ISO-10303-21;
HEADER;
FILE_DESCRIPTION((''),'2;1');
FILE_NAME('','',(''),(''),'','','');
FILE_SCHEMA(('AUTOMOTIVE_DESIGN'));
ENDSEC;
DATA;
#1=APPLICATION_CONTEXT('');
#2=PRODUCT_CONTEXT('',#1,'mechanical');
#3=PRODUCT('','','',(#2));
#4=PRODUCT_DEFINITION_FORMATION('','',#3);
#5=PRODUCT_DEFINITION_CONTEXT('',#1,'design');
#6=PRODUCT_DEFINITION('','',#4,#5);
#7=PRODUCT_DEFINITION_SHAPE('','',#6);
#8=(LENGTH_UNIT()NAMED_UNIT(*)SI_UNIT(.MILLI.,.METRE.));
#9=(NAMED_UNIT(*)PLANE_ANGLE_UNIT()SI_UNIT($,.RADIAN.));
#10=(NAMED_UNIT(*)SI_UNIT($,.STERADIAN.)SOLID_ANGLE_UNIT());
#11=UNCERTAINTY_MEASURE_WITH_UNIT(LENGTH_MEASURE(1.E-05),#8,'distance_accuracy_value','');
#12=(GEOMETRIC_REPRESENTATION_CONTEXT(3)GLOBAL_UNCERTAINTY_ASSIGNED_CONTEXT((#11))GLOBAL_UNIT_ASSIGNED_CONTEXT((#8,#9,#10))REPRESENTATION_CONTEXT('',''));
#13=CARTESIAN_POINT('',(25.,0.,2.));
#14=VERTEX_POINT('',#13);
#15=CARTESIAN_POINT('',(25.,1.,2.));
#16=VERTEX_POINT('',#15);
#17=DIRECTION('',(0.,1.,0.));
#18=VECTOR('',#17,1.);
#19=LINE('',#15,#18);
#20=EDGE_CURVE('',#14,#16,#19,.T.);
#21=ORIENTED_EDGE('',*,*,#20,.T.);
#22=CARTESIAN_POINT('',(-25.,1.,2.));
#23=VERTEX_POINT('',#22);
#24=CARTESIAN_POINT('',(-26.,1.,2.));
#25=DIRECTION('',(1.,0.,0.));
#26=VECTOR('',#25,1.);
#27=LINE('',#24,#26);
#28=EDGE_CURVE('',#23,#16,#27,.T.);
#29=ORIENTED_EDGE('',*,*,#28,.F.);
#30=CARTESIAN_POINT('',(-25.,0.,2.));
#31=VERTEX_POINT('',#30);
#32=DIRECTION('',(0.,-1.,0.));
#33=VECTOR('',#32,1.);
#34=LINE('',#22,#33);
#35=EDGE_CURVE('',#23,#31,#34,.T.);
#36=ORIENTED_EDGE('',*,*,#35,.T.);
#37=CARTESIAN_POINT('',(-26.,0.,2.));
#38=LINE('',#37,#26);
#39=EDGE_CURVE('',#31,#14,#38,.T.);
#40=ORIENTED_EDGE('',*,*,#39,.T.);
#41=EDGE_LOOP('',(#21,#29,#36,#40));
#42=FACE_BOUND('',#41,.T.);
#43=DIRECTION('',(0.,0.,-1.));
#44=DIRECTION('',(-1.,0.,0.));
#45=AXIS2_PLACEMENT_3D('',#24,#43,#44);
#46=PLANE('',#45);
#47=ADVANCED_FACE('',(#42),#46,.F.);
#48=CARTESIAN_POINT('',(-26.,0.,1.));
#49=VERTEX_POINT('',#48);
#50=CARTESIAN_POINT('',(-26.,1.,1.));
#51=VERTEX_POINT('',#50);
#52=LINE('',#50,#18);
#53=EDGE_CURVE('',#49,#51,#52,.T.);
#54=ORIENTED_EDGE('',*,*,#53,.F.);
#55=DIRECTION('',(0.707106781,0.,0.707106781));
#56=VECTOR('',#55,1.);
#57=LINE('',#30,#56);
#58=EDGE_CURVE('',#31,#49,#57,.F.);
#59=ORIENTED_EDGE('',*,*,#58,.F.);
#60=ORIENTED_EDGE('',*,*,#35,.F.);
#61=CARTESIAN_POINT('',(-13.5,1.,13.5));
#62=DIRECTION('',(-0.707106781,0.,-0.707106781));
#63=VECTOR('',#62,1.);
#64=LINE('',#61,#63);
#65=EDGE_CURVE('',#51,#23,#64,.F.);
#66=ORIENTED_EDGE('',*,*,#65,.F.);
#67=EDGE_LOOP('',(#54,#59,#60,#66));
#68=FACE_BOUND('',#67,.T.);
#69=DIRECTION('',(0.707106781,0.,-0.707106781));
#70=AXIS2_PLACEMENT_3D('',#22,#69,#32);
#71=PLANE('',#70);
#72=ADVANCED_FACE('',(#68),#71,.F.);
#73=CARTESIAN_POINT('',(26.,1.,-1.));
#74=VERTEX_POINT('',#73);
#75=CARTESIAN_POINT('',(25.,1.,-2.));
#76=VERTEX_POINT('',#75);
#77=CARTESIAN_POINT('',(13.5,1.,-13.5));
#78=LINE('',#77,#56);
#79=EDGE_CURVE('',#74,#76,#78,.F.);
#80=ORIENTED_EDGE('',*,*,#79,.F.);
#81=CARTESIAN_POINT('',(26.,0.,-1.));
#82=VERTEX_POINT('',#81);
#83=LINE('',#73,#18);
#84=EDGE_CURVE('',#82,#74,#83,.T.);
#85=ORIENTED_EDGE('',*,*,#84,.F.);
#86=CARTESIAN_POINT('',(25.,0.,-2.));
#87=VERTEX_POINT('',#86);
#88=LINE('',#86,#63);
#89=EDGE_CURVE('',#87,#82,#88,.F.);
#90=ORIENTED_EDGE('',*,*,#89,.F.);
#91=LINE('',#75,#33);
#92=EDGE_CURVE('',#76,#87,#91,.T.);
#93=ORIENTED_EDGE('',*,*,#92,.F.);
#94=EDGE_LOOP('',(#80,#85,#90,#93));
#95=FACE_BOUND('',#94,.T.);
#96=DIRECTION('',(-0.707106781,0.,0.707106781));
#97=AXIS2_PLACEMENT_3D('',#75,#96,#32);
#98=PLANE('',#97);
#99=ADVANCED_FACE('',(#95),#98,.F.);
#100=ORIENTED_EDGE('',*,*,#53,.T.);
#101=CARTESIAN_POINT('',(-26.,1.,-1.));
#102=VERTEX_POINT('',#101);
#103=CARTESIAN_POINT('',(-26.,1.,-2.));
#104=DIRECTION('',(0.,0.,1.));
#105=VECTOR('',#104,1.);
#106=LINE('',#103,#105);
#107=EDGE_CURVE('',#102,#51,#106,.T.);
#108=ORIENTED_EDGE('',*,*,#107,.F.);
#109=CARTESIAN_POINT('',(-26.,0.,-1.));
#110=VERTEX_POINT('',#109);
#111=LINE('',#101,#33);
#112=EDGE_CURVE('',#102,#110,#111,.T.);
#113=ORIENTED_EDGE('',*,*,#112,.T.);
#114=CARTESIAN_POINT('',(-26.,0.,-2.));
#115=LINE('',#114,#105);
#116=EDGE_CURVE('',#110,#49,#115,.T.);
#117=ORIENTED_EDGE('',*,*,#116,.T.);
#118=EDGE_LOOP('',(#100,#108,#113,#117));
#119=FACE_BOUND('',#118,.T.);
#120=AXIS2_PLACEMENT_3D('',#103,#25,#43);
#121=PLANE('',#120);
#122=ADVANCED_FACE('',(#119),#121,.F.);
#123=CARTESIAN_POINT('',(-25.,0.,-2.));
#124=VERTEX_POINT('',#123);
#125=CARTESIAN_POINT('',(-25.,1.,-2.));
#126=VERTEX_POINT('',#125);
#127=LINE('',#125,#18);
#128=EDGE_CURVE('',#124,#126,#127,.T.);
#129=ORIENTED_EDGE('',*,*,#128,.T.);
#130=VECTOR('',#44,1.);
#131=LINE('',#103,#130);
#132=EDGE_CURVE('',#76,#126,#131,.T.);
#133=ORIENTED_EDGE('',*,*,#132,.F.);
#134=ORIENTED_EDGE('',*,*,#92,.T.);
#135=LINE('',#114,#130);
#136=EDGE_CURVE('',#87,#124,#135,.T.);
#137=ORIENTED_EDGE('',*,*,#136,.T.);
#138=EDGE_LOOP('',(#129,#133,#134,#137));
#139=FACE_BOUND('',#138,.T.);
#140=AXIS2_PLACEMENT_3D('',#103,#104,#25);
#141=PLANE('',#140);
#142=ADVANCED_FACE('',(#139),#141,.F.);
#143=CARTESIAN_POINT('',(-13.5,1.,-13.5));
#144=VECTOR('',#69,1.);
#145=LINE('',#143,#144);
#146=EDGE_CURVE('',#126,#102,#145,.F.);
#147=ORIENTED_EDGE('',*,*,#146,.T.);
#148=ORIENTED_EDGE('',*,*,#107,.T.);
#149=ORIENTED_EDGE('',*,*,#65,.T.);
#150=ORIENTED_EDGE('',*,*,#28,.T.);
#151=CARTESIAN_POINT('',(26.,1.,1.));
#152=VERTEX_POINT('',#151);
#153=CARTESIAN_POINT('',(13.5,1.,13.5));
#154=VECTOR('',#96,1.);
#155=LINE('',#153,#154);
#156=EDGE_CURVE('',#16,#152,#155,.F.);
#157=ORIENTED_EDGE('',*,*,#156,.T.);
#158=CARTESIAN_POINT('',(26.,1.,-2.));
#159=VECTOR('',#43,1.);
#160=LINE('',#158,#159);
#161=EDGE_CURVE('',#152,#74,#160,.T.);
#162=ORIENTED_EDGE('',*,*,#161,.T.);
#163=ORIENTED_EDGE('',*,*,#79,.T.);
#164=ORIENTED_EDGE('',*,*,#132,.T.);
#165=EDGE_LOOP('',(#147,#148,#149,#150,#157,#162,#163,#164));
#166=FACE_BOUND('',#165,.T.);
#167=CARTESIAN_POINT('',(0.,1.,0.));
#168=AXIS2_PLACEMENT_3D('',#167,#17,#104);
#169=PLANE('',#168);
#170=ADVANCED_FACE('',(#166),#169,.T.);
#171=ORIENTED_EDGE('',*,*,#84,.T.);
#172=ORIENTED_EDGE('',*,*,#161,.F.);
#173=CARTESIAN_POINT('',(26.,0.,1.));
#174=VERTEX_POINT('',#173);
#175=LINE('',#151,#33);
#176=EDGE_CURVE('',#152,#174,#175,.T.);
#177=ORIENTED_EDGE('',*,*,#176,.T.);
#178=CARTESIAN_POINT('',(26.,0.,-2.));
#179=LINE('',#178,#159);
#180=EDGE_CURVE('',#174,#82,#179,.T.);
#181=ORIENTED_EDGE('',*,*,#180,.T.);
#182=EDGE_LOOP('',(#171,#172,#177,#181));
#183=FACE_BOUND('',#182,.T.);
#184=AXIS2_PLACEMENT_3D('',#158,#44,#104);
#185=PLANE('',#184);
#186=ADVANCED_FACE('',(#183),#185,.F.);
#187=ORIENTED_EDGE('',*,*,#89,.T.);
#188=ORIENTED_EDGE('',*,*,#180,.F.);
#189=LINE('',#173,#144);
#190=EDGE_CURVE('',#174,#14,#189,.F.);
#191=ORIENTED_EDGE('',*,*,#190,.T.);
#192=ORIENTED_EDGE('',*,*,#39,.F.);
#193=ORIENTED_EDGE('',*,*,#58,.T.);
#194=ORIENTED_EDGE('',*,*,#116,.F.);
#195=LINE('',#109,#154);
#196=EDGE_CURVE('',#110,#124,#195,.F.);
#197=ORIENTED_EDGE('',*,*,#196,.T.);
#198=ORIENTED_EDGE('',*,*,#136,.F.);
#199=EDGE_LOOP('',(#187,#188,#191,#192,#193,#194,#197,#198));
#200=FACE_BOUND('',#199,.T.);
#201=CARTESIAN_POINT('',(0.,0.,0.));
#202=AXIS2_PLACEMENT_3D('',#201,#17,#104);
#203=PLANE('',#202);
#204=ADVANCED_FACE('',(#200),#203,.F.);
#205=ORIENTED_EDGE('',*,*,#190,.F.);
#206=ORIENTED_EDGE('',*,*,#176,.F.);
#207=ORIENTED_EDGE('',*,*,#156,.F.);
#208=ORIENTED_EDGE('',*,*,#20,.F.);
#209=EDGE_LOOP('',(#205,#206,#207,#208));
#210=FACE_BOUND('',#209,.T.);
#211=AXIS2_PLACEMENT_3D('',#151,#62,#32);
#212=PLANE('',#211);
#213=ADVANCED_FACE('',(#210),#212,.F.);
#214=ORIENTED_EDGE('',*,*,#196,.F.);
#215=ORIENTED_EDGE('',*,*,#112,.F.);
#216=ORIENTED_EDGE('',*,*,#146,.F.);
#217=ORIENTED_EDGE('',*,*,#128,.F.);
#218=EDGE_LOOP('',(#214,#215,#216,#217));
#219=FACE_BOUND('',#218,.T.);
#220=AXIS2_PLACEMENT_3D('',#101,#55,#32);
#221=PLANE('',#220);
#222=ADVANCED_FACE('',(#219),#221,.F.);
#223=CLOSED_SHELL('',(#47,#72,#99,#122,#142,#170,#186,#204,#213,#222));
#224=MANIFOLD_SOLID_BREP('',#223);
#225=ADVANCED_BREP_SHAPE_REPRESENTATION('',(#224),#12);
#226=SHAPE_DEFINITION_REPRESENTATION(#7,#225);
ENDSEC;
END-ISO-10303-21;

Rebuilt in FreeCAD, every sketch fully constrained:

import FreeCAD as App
import Part
import Sketcher
Q = App.Units.Quantity


def edges_at(feature, points):
    """Names of the edges that pass closest to the given points."""
    edges = feature.Shape.Edges
    near = lambda p: min(range(len(edges)), key=lambda i: edges[i].distToShape(Part.Vertex(*p))[0])
    return sorted({f"Edge{near(p) + 1}" for p in points})

doc = App.newDocument("Part")
body = doc.addObject("PartDesign::Body", "Body")

# Sketch on XZ plane
sketch1 = body.newObject("Sketcher::SketchObject", "Sketch")
sketch1.AttachmentSupport = (doc.getObject("XZ_Plane"), [""])
sketch1.MapMode = "FlatFace"
sketch1.addGeometry(Part.LineSegment(App.Vector(-26, -2, 0), App.Vector(-26, 2, 0)), False)
sketch1.addGeometry(Part.LineSegment(App.Vector(-26, 2, 0), App.Vector(26, 2, 0)), False)
sketch1.addGeometry(Part.LineSegment(App.Vector(26, 2, 0), App.Vector(26, -2, 0)), False)
sketch1.addGeometry(Part.LineSegment(App.Vector(26, -2, 0), App.Vector(-26, -2, 0)), False)
sketch1.addConstraint(Sketcher.Constraint("Coincident", 0, 2, 1, 1))
sketch1.addConstraint(Sketcher.Constraint("Coincident", 1, 2, 2, 1))
sketch1.addConstraint(Sketcher.Constraint("Coincident", 2, 2, 3, 1))
sketch1.addConstraint(Sketcher.Constraint("Coincident", 3, 2, 0, 1))
sketch1.addConstraint(Sketcher.Constraint("Vertical", 0))
sketch1.addConstraint(Sketcher.Constraint("Horizontal", 1))
sketch1.addConstraint(Sketcher.Constraint("Vertical", 2))
sketch1.addConstraint(Sketcher.Constraint("Horizontal", 3))
sketch1.addConstraint(Sketcher.Constraint("Symmetric", 0, 2, 2, 2, -1, 1))
sketch1.addConstraint(Sketcher.Constraint("DistanceX", 1, 1, 1, 2, Q("52 mm")))
sketch1.addConstraint(Sketcher.Constraint("DistanceY", 0, 1, 0, 2, Q("4 mm")))
pad1 = body.newObject("PartDesign::Pad", "Pad")
pad1.Profile = sketch1
pad1.Length = 1
pad1.Reversed = True
doc.recompute()

chamfer = body.newObject("PartDesign::Chamfer", "Chamfer")
chamfer.Base = (pad1, edges_at(pad1, [
    (26, 0.5, 2),
    (-26, 0.5, 2),
    (-26, 0.5, -2),
    (26, 0.5, -2),
]))
chamfer.Size = 1

doc.recompute()
